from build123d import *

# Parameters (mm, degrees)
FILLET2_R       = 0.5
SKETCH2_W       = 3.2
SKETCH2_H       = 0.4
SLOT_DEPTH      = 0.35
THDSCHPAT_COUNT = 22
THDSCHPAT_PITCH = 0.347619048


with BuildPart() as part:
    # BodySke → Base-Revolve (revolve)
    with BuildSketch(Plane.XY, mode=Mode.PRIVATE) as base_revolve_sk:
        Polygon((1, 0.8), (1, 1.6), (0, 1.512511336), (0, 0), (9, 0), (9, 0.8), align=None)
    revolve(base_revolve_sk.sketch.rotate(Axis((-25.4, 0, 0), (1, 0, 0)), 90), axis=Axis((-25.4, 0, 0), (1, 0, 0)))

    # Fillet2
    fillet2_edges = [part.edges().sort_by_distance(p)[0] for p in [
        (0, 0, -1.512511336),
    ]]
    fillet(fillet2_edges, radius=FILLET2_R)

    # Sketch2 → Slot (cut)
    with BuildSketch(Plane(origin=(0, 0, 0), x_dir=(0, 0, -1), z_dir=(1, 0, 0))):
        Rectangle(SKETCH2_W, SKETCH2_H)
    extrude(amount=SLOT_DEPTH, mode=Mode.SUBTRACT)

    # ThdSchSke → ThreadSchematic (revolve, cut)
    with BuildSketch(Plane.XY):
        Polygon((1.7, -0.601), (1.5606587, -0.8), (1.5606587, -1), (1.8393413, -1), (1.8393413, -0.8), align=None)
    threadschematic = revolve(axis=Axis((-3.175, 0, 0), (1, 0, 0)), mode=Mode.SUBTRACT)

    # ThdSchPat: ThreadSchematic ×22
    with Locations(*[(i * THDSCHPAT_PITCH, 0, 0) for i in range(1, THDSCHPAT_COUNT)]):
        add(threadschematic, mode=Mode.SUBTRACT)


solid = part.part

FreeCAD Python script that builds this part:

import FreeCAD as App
import Part
import Sketcher
Q = App.Units.Quantity


def edges_at(feature, points):
    """Names of the edges that pass closest to the given points."""
    edges = feature.Shape.Edges
    near = lambda p: min(range(len(edges)), key=lambda i: edges[i].distToShape(Part.Vertex(*p))[0])
    return sorted({f"Edge{near(p) + 1}" for p in points})

doc = App.newDocument("Part")
body = doc.addObject("PartDesign::Body", "Body")

sketch1 = body.newObject("Sketcher::SketchObject", "Sketch")
sketch1.AttachmentSupport = (doc.getObject("XY_Plane"), [""])
sketch1.MapMode = "FlatFace"
sketch1.addGeometry(Part.LineSegment(App.Vector(1, 0.8, 0), App.Vector(1, 1.6, 0)), False)
sketch1.addGeometry(Part.LineSegment(App.Vector(1, 1.6, 0), App.Vector(0, 1.5, 0)), False)
sketch1.addGeometry(Part.LineSegment(App.Vector(0, 1.5, 0), App.Vector(0, 0, 0)), False)
sketch1.addGeometry(Part.LineSegment(App.Vector(0, 0, 0), App.Vector(9, 0, 0)), False)
sketch1.addGeometry(Part.LineSegment(App.Vector(9, 0, 0), App.Vector(9, 0.8, 0)), False)
sketch1.addGeometry(Part.LineSegment(App.Vector(9, 0.8, 0), App.Vector(1, 0.8, 0)), False)
sketch1.addConstraint(Sketcher.Constraint("Coincident", 0, 2, 1, 1))
sketch1.addConstraint(Sketcher.Constraint("Coincident", 1, 2, 2, 1))
sketch1.addConstraint(Sketcher.Constraint("Coincident", 2, 2, 3, 1))
sketch1.addConstraint(Sketcher.Constraint("Coincident", 3, 2, 4, 1))
sketch1.addConstraint(Sketcher.Constraint("Coincident", 4, 2, 5, 1))
sketch1.addConstraint(Sketcher.Constraint("Coincident", 5, 2, 0, 1))
sketch1.addConstraint(Sketcher.Constraint("Vertical", 0))
sketch1.addConstraint(Sketcher.Constraint("Vertical", 2))
sketch1.addConstraint(Sketcher.Constraint("Horizontal", 3))
sketch1.addConstraint(Sketcher.Constraint("Vertical", 4))
sketch1.addConstraint(Sketcher.Constraint("Horizontal", 5))
sketch1.addConstraint(Sketcher.Constraint("Coincident", 2, 2, -1, 1))
sketch1.addConstraint(Sketcher.Constraint("Equal", 0, 4))
sketch1.addConstraint(Sketcher.Constraint("DistanceX", 3, 1, 3, 2, Q("9 mm")))
sketch1.addConstraint(Sketcher.Constraint("DistanceX", 5, 2, 5, 1, Q("8 mm")))
sketch1.addConstraint(Sketcher.Constraint("Angle", 1, Q("-175 deg")))
sketch1.addConstraint(Sketcher.Constraint("DistanceY", 0, 1, 0, 2, Q("0.8 mm")))
revolution = body.newObject("PartDesign::Revolution", "Revolution")
revolution.Profile = sketch1
revolution.ReferenceAxis = (sketch1, ["H_Axis"])
revolution.Angle = 360
doc.recompute()

fillet = body.newObject("PartDesign::Fillet", "Fillet")
fillet.Base = (revolution, edges_at(revolution, [(0, 0, -1.513)]))
fillet.Radius = 0.5

sketch2 = body.newObject("Sketcher::SketchObject", "Sketch001")
sketch2.AttachmentSupport = (doc.getObject("YZ_Plane"), [""])
sketch2.MapMode = "FlatFace"
sketch2.addGeometry(Part.LineSegment(App.Vector(0.2, 1.6, 0), App.Vector(-0.2, 1.6, 0)), False)
sketch2.addGeometry(Part.LineSegment(App.Vector(-0.2, 1.6, 0), App.Vector(-0.2, -1.6, 0)), False)
sketch2.addGeometry(Part.LineSegment(App.Vector(-0.2, -1.6, 0), App.Vector(0.2, -1.6, 0)), False)
sketch2.addGeometry(Part.LineSegment(App.Vector(0.2, -1.6, 0), App.Vector(0.2, 1.6, 0)), False)
sketch2.addConstraint(Sketcher.Constraint("Coincident", 0, 2, 1, 1))
sketch2.addConstraint(Sketcher.Constraint("Coincident", 1, 2, 2, 1))
sketch2.addConstraint(Sketcher.Constraint("Coincident", 2, 2, 3, 1))
sketch2.addConstraint(Sketcher.Constraint("Coincident", 3, 2, 0, 1))
sketch2.addConstraint(Sketcher.Constraint("Horizontal", 0))
sketch2.addConstraint(Sketcher.Constraint("Vertical", 1))
sketch2.addConstraint(Sketcher.Constraint("Horizontal", 2))
sketch2.addConstraint(Sketcher.Constraint("Vertical", 3))
sketch2.addConstraint(Sketcher.Constraint("Symmetric", 0, 2, 2, 2, -1, 1))
sketch2.addConstraint(Sketcher.Constraint("DistanceX", 0, 2, 0, 1, Q("0.4 mm")))
sketch2.addConstraint(Sketcher.Constraint("DistanceY", 1, 2, 1, 1, Q("3.2 mm")))
pocket1 = body.newObject("PartDesign::Pocket", "Pocket")
pocket1.Profile = sketch2
pocket1.Length = 0.35
pocket1.Reversed = True

sketch3 = body.newObject("Sketcher::SketchObject", "Sketch002")
sketch3.AttachmentSupport = (doc.getObject("XY_Plane"), [""])
sketch3.MapMode = "FlatFace"
sketch3.addGeometry(Part.LineSegment(App.Vector(1.7, -0.6, 0), App.Vector(1.56, -0.8, 0)), False)
sketch3.addGeometry(Part.LineSegment(App.Vector(1.56, -0.8, 0), App.Vector(1.56, -1, 0)), False)
sketch3.addGeometry(Part.LineSegment(App.Vector(1.56, -1, 0), App.Vector(1.84, -1, 0)), False)
sketch3.addGeometry(Part.LineSegment(App.Vector(1.84, -1, 0), App.Vector(1.84, -0.8, 0)), False)
sketch3.addGeometry(Part.LineSegment(App.Vector(1.84, -0.8, 0), App.Vector(1.7, -0.6, 0)), False)
sketch3.addConstraint(Sketcher.Constraint("Coincident", 0, 2, 1, 1))
sketch3.addConstraint(Sketcher.Constraint("Coincident", 1, 2, 2, 1))
sketch3.addConstraint(Sketcher.Constraint("Coincident", 2, 2, 3, 1))
sketch3.addConstraint(Sketcher.Constraint("Coincident", 3, 2, 4, 1))
sketch3.addConstraint(Sketcher.Constraint("Coincident", 4, 2, 0, 1))
sketch3.addConstraint(Sketcher.Constraint("Vertical", 1))
sketch3.addConstraint(Sketcher.Constraint("Horizontal", 2))
sketch3.addConstraint(Sketcher.Constraint("Vertical", 3))
sketch3.addConstraint(Sketcher.Constraint("Horizontal", 0, 2, 3, 2))
sketch3.addConstraint(Sketcher.Constraint("Equal", 0, 4))
sketch3.addConstraint(Sketcher.Constraint("Angle", 0, Q("-125 deg")))
sketch3.addConstraint(Sketcher.Constraint("DistanceY", 1, 2, 1, 1, Q("0.2 mm")))
sketch3.addConstraint(Sketcher.Constraint("DistanceY", 1, 2, -1, 1, Q("1 mm")))
sketch3.addConstraint(Sketcher.Constraint("DistanceX", -1, 1, 4, 2, Q("1.7 mm")))
sketch3.addConstraint(Sketcher.Constraint("DistanceY", 4, 2, -1, 1, Q("0.601 mm")))
groove = body.newObject("PartDesign::Groove", "Groove")
groove.Profile = sketch3
groove.ReferenceAxis = (sketch3, ["H_Axis"])
groove.Angle = 360
doc.recompute()

linearpattern = body.newObject("PartDesign::LinearPattern", "LinearPattern")
linearpattern.Originals = [groove]
linearpattern.Direction = (doc.getObject("X_Axis"), [""])
linearpattern.Mode = "offset"
linearpattern.Offset = 0.347619
linearpattern.Occurrences = 22
body.Tip = linearpattern

doc.recompute()
